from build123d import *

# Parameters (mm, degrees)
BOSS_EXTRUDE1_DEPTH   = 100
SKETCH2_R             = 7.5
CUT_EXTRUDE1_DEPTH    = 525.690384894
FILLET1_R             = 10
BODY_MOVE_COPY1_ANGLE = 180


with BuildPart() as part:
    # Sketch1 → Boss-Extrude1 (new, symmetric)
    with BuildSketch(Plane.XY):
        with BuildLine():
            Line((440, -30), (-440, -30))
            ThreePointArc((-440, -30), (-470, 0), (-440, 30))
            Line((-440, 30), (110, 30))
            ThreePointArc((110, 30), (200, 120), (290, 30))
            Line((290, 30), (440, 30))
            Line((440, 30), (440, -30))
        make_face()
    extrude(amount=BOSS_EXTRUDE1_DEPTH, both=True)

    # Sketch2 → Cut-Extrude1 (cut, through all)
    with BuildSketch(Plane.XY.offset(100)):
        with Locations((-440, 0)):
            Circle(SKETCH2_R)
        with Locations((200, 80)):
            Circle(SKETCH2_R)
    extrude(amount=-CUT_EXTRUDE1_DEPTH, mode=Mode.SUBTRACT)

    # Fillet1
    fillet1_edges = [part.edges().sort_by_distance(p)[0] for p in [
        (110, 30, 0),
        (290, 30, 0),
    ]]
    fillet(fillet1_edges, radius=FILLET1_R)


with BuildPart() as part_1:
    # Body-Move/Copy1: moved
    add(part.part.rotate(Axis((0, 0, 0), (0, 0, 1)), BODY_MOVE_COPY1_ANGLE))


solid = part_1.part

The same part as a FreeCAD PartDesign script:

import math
import FreeCAD as App
import Part
import Sketcher

V = App.Vector
Q = App.Units.Quantity


def edges_at(feature, points):
    """Names of the edges that pass closest to the given points."""
    edges = feature.Shape.Edges
    near = lambda p: min(range(len(edges)), key=lambda i: edges[i].distToShape(Part.Vertex(*p))[0])
    return sorted({f"Edge{near(p) + 1}" for p in points})

doc = App.newDocument("Part")
params = doc.addObject("Spreadsheet::Sheet", "Params")
for row, (alias, value) in enumerate([
    ("sketch1_radius", "90 mm"),
    ("sketch1_radius2", "30 mm"),
    ("sketch1_width", "880 mm"),
    ("sketch1_width2", "150 mm"),
    ("pad1_length", "200 mm"),
    ("sketch2_diameter", "15 mm"),
    ("fillet_radius", "10 mm"),
], start=1):
    params.set(f"A{row}", alias)
    params.set(f"B{row}", "=" + value)
    params.setAlias(f"B{row}", alias)

body = doc.addObject("PartDesign::Body", "Body")

# Sketch on XY plane
sketch1 = body.newObject("Sketcher::SketchObject", "Sketch")
sketch1.AttachmentSupport = (doc.getObject("XY_Plane"), [""])
sketch1.MapMode = "FlatFace"
sketch1.addGeometry(Part.LineSegment(V(-440, -30, 0), V(440, -30, 0)), False)
sketch1.addGeometry(Part.LineSegment(V(440, -30, 0), V(440, 30, 0)), False)
sketch1.addGeometry(Part.LineSegment(V(440, 30, 0), V(290, 30, 0)), False)
sketch1.addGeometry(Part.ArcOfCircle(Part.Circle(V(200, 30, 0), V(0, 0, 1), 90), math.radians(0), math.radians(180)), False)
sketch1.addGeometry(Part.LineSegment(V(110, 30, 0), V(-440, 30, 0)), False)
sketch1.addGeometry(Part.ArcOfCircle(Part.Circle(V(-440, 0, 0), V(0, 0, 1), 30), math.radians(90), math.radians(270)), False)
sketch1.addConstraint(Sketcher.Constraint("Coincident", 0, 2, 1, 1))
sketch1.addConstraint(Sketcher.Constraint("Coincident", 1, 2, 2, 1))
sketch1.addConstraint(Sketcher.Constraint("Coincident", 2, 2, 3, 1))
sketch1.addConstraint(Sketcher.Constraint("Coincident", 3, 2, 4, 1))
sketch1.addConstraint(Sketcher.Constraint("Tangent", 4, 2, 5, 1))
sketch1.addConstraint(Sketcher.Constraint("Tangent", 5, 2, 0, 1))
sketch1.addConstraint(Sketcher.Constraint("Horizontal", 0))
sketch1.addConstraint(Sketcher.Constraint("Vertical", 1))
sketch1.addConstraint(Sketcher.Constraint("Horizontal", 2))
sketch1.addConstraint(Sketcher.Constraint("Horizontal", 4))
sketch1.addConstraint(Sketcher.Constraint("Symmetric", 0, 2, 4, 2, -1, 1))
sketch1.addConstraint(Sketcher.Constraint("Horizontal", 3, 3, 1, 2))
sketch1.addConstraint(Sketcher.Constraint("Horizontal", 2, 2, 3, 2))
sketch1.addConstraint(Sketcher.Constraint("Radius", 3, Q("90 mm")))
sketch1.addConstraint(Sketcher.Constraint("Radius", 5, Q("30 mm")))
sketch1.addConstraint(Sketcher.Constraint("DistanceX", 0, 1, 0, 2, Q("880 mm")))
sketch1.addConstraint(Sketcher.Constraint("DistanceX", 2, 2, 2, 1, Q("150 mm")))
sketch1.setExpression("Constraints[13]", "Params.sketch1_radius")
sketch1.setExpression("Constraints[14]", "Params.sketch1_radius2")
sketch1.setExpression("Constraints[15]", "Params.sketch1_width")
sketch1.setExpression("Constraints[16]", "Params.sketch1_width2")
pad1 = body.newObject("PartDesign::Pad", "Pad")
pad1.Profile = sketch1
pad1.setExpression("Length", "Params.pad1_length")
pad1.Midplane = True

# Sketch on XY plane
sketch2 = body.newObject("Sketcher::SketchObject", "Sketch001")
sketch2.AttachmentSupport = (doc.getObject("XY_Plane"), [""])
sketch2.MapMode = "FlatFace"
sketch2.AttachmentOffset = App.Placement(V(0, 0, 100), App.Rotation())
sketch2.addGeometry(Part.Circle(V(-440, 0, 0), V(0, 0, 1), 8), False)
sketch2.addGeometry(Part.Circle(V(200, 80, 0), V(0, 0, 1), 8), False)
sketch2.addConstraint(Sketcher.Constraint("Equal", 0, 1))
sketch2.addConstraint(Sketcher.Constraint("PointOnObject", 0, 3, -1))
sketch2.addConstraint(Sketcher.Constraint("Diameter", 0, Q("15 mm")))
sketch2.addConstraint(Sketcher.Constraint("DistanceX", 0, 3, -1, 1, Q("440 mm")))
sketch2.addConstraint(Sketcher.Constraint("DistanceX", -1, 1, 1, 3, Q("200 mm")))
sketch2.addConstraint(Sketcher.Constraint("DistanceY", -1, 1, 1, 3, Q("80 mm")))
sketch2.setExpression("Constraints[2]", "Params.sketch2_diameter")
pocket1 = body.newObject("PartDesign::Pocket", "Pocket")
pocket1.Profile = sketch2
pocket1.Type = "ThroughAll"
doc.recompute()

fillet = body.newObject("PartDesign::Fillet", "Fillet")
fillet.Base = (pocket1, edges_at(pocket1, [(110, 30, 0), (290, 30, 0)]))
fillet.setExpression("Radius", "Params.fillet_radius")
body2 = doc.addObject("PartDesign::Body", "Body001")
doc.recompute()

body.Placement = App.Placement(V(0, 0, 0), App.Rotation(V(0, 0, 1), 180))
boolean = body2.newObject("PartDesign::Boolean", "Boolean")
boolean.Type = "Fuse"
boolean.addObjects([body])

doc.recompute()
